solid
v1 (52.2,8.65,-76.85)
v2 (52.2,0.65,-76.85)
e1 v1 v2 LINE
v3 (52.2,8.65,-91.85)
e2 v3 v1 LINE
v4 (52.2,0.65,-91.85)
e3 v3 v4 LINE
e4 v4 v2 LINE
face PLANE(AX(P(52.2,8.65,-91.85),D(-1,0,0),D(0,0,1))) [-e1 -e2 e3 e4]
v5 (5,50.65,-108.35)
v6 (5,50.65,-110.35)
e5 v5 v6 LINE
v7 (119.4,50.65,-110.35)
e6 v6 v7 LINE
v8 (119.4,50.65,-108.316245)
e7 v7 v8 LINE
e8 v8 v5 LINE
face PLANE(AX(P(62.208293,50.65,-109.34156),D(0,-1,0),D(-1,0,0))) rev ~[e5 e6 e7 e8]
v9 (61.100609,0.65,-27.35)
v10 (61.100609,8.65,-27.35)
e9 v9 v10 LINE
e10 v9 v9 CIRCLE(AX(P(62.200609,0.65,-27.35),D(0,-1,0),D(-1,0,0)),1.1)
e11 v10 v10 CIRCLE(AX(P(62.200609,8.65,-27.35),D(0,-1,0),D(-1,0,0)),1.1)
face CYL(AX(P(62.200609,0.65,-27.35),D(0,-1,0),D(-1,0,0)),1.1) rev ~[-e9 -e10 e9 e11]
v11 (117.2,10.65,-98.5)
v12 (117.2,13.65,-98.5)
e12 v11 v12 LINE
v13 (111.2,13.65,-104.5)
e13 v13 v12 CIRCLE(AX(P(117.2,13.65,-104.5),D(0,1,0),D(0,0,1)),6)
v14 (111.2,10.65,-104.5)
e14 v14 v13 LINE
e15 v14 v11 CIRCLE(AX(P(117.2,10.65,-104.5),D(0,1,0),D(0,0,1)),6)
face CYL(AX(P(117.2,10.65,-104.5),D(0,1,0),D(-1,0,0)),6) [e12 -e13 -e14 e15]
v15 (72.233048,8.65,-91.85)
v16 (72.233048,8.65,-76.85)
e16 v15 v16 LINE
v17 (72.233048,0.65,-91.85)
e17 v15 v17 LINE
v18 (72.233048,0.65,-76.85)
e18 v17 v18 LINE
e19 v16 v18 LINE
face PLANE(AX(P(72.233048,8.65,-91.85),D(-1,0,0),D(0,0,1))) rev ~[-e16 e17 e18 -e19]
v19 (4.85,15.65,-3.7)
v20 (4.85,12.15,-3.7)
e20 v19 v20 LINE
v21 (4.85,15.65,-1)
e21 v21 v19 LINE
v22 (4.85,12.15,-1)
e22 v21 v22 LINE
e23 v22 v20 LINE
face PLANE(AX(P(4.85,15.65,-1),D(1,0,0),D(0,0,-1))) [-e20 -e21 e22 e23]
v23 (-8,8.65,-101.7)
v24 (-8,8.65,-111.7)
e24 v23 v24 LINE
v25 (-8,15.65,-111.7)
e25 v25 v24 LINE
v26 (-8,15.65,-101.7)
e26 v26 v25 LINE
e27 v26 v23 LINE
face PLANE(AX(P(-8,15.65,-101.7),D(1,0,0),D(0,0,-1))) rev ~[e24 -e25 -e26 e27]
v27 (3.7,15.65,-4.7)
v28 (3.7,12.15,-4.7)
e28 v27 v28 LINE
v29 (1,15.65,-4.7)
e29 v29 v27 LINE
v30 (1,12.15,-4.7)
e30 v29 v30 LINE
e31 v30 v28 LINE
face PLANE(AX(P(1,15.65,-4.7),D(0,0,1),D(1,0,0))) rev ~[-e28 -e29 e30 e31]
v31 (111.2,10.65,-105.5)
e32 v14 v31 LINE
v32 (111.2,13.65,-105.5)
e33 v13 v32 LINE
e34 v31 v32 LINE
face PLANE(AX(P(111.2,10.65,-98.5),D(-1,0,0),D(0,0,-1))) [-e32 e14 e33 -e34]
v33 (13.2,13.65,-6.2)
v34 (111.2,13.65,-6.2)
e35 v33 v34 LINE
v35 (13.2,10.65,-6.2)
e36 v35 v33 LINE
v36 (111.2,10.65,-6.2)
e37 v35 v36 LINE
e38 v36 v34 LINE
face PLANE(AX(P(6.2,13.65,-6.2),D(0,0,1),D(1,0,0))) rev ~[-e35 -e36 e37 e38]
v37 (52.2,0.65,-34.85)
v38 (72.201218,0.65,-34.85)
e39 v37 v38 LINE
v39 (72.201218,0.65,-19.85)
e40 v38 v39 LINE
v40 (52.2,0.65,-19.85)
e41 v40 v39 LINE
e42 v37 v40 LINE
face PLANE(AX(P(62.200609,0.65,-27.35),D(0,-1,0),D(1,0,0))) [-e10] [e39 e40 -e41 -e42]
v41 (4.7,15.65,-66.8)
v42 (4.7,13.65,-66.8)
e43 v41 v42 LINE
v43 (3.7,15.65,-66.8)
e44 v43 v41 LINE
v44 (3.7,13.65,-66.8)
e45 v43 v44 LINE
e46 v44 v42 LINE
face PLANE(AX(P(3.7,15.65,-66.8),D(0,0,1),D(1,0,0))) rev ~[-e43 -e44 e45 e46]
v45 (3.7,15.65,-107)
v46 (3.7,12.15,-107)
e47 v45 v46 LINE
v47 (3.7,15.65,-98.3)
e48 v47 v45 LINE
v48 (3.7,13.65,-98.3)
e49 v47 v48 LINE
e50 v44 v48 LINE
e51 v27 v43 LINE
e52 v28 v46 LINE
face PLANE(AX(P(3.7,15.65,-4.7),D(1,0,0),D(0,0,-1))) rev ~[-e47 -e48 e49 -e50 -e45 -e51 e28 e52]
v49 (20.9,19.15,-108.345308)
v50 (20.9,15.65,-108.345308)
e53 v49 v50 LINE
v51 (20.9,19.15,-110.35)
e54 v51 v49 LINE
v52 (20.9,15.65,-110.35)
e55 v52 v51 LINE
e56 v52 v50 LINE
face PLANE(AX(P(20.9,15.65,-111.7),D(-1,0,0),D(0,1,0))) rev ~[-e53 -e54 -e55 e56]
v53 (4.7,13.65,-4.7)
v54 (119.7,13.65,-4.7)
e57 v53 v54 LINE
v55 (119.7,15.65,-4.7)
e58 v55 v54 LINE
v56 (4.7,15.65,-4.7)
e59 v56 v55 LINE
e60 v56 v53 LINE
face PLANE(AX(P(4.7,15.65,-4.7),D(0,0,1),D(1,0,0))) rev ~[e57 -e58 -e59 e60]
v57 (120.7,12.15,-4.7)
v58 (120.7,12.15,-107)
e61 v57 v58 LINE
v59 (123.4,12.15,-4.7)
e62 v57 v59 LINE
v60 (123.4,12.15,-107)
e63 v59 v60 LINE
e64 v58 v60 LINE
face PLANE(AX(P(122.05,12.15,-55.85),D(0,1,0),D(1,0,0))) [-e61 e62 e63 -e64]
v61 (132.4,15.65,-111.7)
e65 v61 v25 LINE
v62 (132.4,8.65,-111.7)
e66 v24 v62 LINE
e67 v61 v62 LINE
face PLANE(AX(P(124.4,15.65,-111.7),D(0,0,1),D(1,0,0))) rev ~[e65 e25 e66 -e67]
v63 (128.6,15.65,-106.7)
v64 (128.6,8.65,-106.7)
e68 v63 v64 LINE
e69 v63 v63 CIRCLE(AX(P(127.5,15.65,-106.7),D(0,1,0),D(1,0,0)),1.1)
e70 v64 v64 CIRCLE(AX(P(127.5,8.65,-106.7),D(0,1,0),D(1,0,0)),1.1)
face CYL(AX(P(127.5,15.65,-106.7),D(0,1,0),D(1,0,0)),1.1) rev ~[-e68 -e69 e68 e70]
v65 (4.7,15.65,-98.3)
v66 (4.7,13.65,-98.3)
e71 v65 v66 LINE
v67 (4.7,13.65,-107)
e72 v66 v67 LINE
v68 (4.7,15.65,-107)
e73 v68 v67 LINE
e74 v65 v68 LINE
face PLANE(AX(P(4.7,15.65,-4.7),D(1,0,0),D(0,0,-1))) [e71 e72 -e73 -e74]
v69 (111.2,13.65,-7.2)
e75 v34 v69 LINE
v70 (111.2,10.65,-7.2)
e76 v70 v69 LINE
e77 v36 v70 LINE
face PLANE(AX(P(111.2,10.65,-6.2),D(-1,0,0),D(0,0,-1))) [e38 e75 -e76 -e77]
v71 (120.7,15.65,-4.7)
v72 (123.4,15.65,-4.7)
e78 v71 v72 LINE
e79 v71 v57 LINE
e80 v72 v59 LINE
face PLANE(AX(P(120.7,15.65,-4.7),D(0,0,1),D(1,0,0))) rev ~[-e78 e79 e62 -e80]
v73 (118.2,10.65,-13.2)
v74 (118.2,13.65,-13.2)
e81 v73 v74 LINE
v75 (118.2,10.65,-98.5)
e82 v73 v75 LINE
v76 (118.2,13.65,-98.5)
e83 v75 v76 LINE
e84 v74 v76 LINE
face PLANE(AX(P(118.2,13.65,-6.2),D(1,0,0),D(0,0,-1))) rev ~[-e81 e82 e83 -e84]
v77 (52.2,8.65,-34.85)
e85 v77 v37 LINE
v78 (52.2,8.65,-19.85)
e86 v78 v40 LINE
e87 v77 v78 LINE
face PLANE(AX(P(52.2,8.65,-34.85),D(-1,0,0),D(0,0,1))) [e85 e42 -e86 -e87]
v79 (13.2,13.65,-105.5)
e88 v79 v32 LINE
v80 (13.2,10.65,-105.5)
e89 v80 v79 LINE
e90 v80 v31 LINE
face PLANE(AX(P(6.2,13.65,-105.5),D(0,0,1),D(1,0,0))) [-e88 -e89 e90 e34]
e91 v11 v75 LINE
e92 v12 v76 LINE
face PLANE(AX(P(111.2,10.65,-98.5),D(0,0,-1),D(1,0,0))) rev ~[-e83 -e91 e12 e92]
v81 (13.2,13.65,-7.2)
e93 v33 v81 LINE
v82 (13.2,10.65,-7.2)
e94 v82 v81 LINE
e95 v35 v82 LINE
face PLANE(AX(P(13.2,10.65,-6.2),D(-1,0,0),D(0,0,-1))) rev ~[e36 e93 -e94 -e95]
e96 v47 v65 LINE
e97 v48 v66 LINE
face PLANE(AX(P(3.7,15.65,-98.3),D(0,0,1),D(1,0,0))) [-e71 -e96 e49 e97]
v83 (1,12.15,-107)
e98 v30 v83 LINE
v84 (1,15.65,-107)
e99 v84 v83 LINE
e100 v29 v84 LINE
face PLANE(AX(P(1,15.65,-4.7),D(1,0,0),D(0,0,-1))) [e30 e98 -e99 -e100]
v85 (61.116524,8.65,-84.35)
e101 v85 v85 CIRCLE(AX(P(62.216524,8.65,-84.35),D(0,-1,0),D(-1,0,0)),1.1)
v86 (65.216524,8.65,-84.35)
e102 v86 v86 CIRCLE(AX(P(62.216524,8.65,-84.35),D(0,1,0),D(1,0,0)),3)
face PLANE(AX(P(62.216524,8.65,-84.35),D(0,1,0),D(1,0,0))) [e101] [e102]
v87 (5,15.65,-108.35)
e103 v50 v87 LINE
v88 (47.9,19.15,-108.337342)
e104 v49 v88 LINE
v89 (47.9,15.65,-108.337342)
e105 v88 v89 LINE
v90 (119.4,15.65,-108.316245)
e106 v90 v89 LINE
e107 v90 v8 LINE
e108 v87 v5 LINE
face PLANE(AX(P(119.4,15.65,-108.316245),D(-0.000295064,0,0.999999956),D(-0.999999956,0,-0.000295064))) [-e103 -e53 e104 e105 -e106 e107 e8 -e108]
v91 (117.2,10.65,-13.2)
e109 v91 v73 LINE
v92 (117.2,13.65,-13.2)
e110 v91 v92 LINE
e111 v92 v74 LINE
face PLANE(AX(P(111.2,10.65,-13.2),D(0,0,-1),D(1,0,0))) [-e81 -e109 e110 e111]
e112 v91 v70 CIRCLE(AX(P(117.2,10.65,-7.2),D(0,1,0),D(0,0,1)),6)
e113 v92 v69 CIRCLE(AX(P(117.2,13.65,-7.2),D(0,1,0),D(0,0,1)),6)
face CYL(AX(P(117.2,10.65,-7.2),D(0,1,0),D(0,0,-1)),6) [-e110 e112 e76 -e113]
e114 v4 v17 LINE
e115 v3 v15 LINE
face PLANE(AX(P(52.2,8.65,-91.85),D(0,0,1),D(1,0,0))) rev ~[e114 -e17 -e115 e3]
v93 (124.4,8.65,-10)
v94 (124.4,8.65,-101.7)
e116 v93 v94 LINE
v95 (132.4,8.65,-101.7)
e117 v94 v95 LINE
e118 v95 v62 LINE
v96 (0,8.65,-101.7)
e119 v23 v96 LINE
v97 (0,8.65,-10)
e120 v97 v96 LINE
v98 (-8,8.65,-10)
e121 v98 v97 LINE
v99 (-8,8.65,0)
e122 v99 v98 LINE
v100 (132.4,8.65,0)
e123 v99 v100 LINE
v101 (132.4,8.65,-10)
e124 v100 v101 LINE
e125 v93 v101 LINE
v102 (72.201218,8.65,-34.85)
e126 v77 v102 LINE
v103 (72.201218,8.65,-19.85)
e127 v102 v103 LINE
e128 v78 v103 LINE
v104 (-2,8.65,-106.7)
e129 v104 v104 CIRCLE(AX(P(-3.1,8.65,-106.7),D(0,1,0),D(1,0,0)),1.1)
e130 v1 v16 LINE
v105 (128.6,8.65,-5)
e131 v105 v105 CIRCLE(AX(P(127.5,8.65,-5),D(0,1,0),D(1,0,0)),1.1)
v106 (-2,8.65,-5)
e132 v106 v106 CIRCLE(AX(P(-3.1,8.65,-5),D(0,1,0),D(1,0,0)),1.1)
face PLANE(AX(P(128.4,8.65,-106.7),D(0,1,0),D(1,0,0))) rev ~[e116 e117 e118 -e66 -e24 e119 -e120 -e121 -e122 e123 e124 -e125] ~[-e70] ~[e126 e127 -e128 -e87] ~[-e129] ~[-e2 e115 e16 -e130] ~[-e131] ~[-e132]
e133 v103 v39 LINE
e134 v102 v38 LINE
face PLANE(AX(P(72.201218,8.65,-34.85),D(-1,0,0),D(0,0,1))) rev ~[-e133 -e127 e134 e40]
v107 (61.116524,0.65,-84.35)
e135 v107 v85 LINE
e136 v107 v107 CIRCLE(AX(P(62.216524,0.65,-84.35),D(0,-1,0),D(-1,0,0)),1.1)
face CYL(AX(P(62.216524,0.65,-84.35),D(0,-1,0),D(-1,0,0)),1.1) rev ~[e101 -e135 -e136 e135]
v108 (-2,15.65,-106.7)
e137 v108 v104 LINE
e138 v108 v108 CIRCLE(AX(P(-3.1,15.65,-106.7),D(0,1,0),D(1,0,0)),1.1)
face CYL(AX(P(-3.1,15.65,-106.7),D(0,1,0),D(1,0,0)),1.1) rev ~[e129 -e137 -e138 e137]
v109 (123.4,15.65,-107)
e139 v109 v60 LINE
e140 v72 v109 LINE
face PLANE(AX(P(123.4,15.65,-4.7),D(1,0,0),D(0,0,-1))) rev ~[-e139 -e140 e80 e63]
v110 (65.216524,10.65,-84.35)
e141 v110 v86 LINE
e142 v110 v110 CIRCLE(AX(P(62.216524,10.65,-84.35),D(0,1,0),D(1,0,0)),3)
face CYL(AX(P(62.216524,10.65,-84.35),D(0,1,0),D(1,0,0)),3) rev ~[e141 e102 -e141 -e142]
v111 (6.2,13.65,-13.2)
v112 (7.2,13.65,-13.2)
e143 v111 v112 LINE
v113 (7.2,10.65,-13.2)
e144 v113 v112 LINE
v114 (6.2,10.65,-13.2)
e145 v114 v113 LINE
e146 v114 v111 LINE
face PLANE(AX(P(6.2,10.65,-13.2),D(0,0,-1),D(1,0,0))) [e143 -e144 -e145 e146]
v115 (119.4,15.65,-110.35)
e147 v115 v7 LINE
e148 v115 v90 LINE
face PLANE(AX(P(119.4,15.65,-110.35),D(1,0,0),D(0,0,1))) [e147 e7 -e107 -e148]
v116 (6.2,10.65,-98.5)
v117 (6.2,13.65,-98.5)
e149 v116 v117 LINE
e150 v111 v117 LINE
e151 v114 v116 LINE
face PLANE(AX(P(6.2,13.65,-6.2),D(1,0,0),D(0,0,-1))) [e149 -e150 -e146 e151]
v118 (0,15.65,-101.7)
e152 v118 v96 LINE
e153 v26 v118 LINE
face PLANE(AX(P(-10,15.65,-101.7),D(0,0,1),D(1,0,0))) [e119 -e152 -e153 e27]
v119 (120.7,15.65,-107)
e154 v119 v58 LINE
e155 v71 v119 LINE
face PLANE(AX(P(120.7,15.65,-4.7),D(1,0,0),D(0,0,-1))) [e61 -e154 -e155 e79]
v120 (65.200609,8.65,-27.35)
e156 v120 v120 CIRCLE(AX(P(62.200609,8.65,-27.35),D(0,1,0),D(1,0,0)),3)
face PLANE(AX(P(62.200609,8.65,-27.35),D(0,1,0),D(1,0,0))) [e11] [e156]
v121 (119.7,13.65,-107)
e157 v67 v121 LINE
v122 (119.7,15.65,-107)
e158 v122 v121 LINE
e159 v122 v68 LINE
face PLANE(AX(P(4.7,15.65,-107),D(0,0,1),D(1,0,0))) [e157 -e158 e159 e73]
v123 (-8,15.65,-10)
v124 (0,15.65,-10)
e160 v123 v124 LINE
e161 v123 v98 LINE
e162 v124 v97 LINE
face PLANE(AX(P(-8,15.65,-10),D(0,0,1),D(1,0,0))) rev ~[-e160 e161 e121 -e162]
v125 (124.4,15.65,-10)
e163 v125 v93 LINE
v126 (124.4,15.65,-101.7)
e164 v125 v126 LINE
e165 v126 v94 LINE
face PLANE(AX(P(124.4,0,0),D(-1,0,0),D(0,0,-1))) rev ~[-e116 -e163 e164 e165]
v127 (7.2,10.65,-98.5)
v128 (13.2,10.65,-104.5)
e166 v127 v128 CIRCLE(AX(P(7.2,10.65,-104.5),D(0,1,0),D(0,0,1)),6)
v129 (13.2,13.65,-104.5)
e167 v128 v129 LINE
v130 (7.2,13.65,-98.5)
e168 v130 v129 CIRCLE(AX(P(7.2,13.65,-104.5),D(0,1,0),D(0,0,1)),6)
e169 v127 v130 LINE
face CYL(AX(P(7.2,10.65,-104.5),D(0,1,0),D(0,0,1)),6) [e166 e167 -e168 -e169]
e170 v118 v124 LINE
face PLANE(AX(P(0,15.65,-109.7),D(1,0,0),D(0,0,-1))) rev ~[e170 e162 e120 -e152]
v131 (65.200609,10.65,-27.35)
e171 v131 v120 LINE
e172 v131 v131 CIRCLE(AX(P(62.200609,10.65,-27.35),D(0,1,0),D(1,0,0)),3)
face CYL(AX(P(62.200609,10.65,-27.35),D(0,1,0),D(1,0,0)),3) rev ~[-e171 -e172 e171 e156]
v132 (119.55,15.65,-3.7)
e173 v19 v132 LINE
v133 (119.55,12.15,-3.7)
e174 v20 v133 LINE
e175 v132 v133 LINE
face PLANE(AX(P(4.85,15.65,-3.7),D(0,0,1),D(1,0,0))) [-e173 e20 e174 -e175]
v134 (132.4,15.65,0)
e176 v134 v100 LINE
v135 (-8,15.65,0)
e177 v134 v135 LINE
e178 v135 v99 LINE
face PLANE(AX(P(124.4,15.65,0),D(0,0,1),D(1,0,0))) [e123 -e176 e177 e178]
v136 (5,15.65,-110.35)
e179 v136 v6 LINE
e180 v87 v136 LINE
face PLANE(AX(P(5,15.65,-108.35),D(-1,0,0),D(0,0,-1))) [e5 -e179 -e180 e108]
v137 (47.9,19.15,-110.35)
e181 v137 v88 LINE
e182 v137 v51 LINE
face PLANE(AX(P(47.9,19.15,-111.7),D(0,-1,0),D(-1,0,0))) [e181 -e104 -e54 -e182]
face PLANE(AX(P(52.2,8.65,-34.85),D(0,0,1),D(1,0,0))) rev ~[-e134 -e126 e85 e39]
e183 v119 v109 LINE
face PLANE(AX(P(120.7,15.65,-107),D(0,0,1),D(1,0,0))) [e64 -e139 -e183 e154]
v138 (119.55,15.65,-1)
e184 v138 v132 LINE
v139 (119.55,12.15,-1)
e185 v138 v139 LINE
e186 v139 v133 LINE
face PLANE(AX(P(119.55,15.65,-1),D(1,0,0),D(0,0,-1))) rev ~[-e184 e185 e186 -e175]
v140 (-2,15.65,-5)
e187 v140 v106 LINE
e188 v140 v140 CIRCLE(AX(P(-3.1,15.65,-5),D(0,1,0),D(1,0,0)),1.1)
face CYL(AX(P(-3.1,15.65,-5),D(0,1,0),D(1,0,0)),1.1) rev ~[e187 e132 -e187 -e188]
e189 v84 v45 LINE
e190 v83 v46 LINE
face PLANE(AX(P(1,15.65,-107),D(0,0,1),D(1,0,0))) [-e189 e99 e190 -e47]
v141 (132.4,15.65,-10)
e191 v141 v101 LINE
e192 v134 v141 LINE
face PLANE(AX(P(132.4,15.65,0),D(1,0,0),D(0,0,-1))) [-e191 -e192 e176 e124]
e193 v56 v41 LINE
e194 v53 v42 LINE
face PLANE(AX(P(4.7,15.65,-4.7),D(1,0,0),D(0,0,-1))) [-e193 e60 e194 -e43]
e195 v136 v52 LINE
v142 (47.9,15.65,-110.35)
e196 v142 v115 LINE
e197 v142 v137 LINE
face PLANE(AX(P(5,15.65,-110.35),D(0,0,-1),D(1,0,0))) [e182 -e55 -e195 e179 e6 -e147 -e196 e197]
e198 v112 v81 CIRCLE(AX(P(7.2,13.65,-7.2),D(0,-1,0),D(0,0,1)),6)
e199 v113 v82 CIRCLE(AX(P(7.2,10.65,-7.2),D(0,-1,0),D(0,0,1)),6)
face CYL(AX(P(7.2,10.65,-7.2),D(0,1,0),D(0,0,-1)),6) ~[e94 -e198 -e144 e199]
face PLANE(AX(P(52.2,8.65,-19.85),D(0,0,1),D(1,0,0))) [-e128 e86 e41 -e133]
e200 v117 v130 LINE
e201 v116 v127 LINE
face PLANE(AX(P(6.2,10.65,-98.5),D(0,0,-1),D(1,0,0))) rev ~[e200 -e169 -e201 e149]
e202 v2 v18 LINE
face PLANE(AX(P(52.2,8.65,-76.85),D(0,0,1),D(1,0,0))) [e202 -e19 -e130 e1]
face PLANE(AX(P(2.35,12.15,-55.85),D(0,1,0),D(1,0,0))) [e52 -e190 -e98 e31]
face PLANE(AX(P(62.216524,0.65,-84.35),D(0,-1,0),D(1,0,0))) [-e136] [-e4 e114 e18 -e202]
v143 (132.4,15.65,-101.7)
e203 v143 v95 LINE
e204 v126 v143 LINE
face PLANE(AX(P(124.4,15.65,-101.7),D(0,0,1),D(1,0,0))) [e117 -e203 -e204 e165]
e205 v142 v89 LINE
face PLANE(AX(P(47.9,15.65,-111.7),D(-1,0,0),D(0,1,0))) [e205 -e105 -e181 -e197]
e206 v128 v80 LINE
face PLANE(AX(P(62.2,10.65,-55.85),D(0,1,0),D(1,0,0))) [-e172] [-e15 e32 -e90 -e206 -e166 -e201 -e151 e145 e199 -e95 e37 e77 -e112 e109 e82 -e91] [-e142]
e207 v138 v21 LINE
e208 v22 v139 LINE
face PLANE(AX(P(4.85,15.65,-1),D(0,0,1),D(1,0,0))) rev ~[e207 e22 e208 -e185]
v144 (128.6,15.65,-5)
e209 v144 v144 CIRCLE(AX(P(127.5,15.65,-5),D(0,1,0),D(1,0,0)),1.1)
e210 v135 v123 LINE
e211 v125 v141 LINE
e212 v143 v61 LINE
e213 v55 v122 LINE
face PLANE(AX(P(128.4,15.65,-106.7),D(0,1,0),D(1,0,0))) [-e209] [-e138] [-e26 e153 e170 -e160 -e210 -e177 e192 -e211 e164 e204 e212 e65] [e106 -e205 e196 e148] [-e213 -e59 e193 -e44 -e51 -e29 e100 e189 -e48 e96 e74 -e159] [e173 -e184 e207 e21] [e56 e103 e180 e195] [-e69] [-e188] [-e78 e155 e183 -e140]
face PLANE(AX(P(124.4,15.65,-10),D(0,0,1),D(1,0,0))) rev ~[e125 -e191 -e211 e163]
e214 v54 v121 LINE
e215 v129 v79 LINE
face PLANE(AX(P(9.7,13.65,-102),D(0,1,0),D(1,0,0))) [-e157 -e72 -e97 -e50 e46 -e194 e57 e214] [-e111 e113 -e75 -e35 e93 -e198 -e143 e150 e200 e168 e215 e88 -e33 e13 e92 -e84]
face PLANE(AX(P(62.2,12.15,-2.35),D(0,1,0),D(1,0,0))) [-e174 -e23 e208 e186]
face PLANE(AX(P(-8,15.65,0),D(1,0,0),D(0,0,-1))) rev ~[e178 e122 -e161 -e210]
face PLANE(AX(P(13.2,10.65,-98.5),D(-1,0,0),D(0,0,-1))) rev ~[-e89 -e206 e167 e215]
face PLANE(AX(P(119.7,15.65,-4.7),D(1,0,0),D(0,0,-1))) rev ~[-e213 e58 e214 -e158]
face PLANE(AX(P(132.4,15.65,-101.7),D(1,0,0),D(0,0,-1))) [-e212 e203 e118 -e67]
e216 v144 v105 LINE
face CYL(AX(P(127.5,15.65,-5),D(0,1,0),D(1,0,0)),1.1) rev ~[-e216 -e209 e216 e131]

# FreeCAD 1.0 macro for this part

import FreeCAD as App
import Part
import Sketcher
from FreeCAD import Vector
Q = App.Units.Quantity


def edges_at(feature, points):
    """Names of the edges that pass closest to the given points."""
    edges = feature.Shape.Edges
    near = lambda p: min(range(len(edges)), key=lambda i: edges[i].distToShape(Part.Vertex(*p))[0])
    return sorted({f"Edge{near(p) + 1}" for p in points})


def add_polygon(sketch, points):
    """Adds a closed chain of lines whose ends are joined by coincident constraints."""
    first, n = sketch.GeometryCount, len(points)
    for a, b in zip(points, points[1:] + points[:1]):
        sketch.addGeometry(Part.LineSegment(App.Vector(*a, 0), App.Vector(*b, 0)), False)
    for i in range(n):
        sketch.addConstraint(Sketcher.Constraint("Coincident", first + i, 2, first + (i + 1) % n, 1))

doc = App.newDocument("Part")
body = doc.addObject("PartDesign::Body", "Body")

# Sketch on XZ plane
sketch1 = body.newObject("Sketcher::SketchObject", "Sketch")
sketch1.AttachmentSupport = (doc.getObject("XZ_Plane"), [""])
sketch1.MapMode = "FlatFace"
add_polygon(sketch1, [(0, -112), (0, 0), (124, 0), (124, -112)])  # lines 0-3
sketch1.addConstraint(Sketcher.Constraint("Vertical", 0))
sketch1.addConstraint(Sketcher.Constraint("Horizontal", 1))
sketch1.addConstraint(Sketcher.Constraint("Vertical", 2))
sketch1.addConstraint(Sketcher.Constraint("Horizontal", 3))
sketch1.addConstraint(Sketcher.Constraint("Coincident", 0, 2, -1, 1))
sketch1.addConstraint(Sketcher.Constraint("DistanceX", 1, 1, 1, 2, Q("124.4 mm")))
sketch1.addConstraint(Sketcher.Constraint("DistanceY", 0, 1, 0, 2, Q("111.7 mm")))
pad1 = body.newObject("PartDesign::Pad", "Pad")
pad1.Profile = sketch1
pad1.Length = 15.65
pad1.Reversed = True
doc.recompute()

fillet = body.newObject("PartDesign::Fillet", "Fillet")
fillet.Base = (pad1, edges_at(pad1, [
    (0, 7.825, -111.7),
    (124.4, 7.825, -111.7),
    (124.4, 7.825, 0),
    (0, 7.825, 0),
]))
fillet.Radius = 2

# Sketch on XZ plane
sketch2 = body.newObject("Sketcher::SketchObject", "Sketch001")
sketch2.AttachmentSupport = (doc.getObject("XZ_Plane"), [""])
sketch2.MapMode = "FlatFace"
sketch2.AttachmentOffset = App.Placement(Vector(0, 0, -15.65), App.Rotation())
add_polygon(sketch2, [(5, -107), (5, -5), (120, -5), (120, -107)])  # lines 0-3
sketch2.addConstraint(Sketcher.Constraint("Vertical", 0))
sketch2.addConstraint(Sketcher.Constraint("Horizontal", 1))
sketch2.addConstraint(Sketcher.Constraint("Vertical", 2))
sketch2.addConstraint(Sketcher.Constraint("Horizontal", 3))
sketch2.addConstraint(Sketcher.Constraint("DistanceX", 1, 1, 1, 2, Q("115 mm")))
sketch2.addConstraint(Sketcher.Constraint("DistanceY", 0, 1, 0, 2, Q("102.3 mm")))
sketch2.addConstraint(Sketcher.Constraint("DistanceY", 2, 2, -1, 1, Q("107 mm")))
sketch2.addConstraint(Sketcher.Constraint("DistanceX", -1, 1, 0, 2, Q("4.7 mm")))
pocket1 = body.newObject("PartDesign::Pocket", "Pocket")
pocket1.Profile = sketch2
pocket1.Length = 2
pocket1.Reversed = True

# Sketch on XZ plane
sketch3 = body.newObject("Sketcher::SketchObject", "Sketch002")
sketch3.AttachmentSupport = (doc.getObject("XZ_Plane"), [""])
sketch3.MapMode = "FlatFace"
sketch3.AttachmentOffset = App.Placement(Vector(0, 0, -13.65), App.Rotation())
add_polygon(sketch3, [(6, -106), (6, -6), (118, -6), (118, -106)])  # lines 0-3
sketch3.addConstraint(Sketcher.Constraint("Vertical", 0))
sketch3.addConstraint(Sketcher.Constraint("Horizontal", 1))
sketch3.addConstraint(Sketcher.Constraint("Vertical", 2))
sketch3.addConstraint(Sketcher.Constraint("Horizontal", 3))
sketch3.addConstraint(Sketcher.Constraint("DistanceX", 1, 1, 1, 2, Q("112 mm")))
sketch3.addConstraint(Sketcher.Constraint("DistanceY", 0, 1, 0, 2, Q("99.3 mm")))
sketch3.addConstraint(Sketcher.Constraint("DistanceX", -1, 1, 0, 2, Q("6.2 mm")))
sketch3.addConstraint(Sketcher.Constraint("DistanceY", 0, 2, -1, 1, Q("6.2 mm")))
pocket2 = body.newObject("PartDesign::Pocket", "Pocket001")
pocket2.Profile = sketch3
pocket2.Length = 3
pocket2.Reversed = True

# Sketch on XZ plane
sketch4 = body.newObject("Sketcher::SketchObject", "Sketch003")
sketch4.AttachmentSupport = (doc.getObject("XZ_Plane"), [""])
sketch4.MapMode = "FlatFace"
sketch4.AttachmentOffset = App.Placement(Vector(0, 0, -10.65), App.Rotation())
add_polygon(sketch4, [(6, -106), (6, -98), (13, -98), (13, -106)])  # lines 0-3
add_polygon(sketch4, [(6, -13), (6, -6), (13, -6), (13, -13)])  # lines 4-7
add_polygon(sketch4, [(111, -106), (111, -98), (118, -98), (118, -106)])  # lines 8-11
add_polygon(sketch4, [(111, -13), (111, -6), (118, -6), (118, -13)])  # lines 12-15
sketch4.addConstraint(Sketcher.Constraint("Vertical", 0))
sketch4.addConstraint(Sketcher.Constraint("Horizontal", 1))
sketch4.addConstraint(Sketcher.Constraint("Vertical", 2))
sketch4.addConstraint(Sketcher.Constraint("Horizontal", 3))
sketch4.addConstraint(Sketcher.Constraint("Vertical", 4))
sketch4.addConstraint(Sketcher.Constraint("Horizontal", 5))
sketch4.addConstraint(Sketcher.Constraint("Vertical", 6))
sketch4.addConstraint(Sketcher.Constraint("Horizontal", 7))
sketch4.addConstraint(Sketcher.Constraint("Vertical", 8))
sketch4.addConstraint(Sketcher.Constraint("Horizontal", 9))
sketch4.addConstraint(Sketcher.Constraint("Vertical", 10))
sketch4.addConstraint(Sketcher.Constraint("Horizontal", 11))
sketch4.addConstraint(Sketcher.Constraint("Vertical", 12))
sketch4.addConstraint(Sketcher.Constraint("Horizontal", 13))
sketch4.addConstraint(Sketcher.Constraint("Vertical", 14))
sketch4.addConstraint(Sketcher.Constraint("Horizontal", 15))
sketch4.addConstraint(Sketcher.Constraint("Horizontal", 1, 2, 8, 2))
sketch4.addConstraint(Sketcher.Constraint("Horizontal", 3, 2, 10, 2))
sketch4.addConstraint(Sketcher.Constraint("Horizontal", 5, 2, 12, 2))
sketch4.addConstraint(Sketcher.Constraint("Horizontal", 7, 2, 14, 2))
sketch4.addConstraint(Sketcher.Constraint("Vertical", 3, 2, 4, 2))
sketch4.addConstraint(Sketcher.Constraint("Vertical", 2, 2, 5, 2))
sketch4.addConstraint(Sketcher.Constraint("Vertical", 11, 2, 12, 2))
sketch4.addConstraint(Sketcher.Constraint("Vertical", 10, 2, 13, 2))
sketch4.addConstraint(Sketcher.Constraint("Equal", 7, 9))
sketch4.addConstraint(Sketcher.Constraint("Equal", 15, 0))
sketch4.addConstraint(Sketcher.Constraint("Equal", 2, 4))
sketch4.addConstraint(Sketcher.Constraint("DistanceX", 1, 1, 1, 2, Q("7 mm")))
sketch4.addConstraint(Sketcher.Constraint("DistanceX", 1, 2, 8, 2, Q("98 mm")))
sketch4.addConstraint(Sketcher.Constraint("DistanceX", -1, 1, 0, 2, Q("6.2 mm")))
sketch4.addConstraint(Sketcher.Constraint("DistanceY", 0, 2, -1, 1, Q("98.5 mm")))
sketch4.addConstraint(Sketcher.Constraint("DistanceY", 4, 2, -1, 1, Q("6.2 mm")))
pad2 = body.newObject("PartDesign::Pad", "Pad001")
pad2.Profile = sketch4
pad2.Length = 3
pad2.Reversed = True

# Sketch on XZ plane
sketch5 = body.newObject("Sketcher::SketchObject", "Sketch004")
sketch5.AttachmentSupport = (doc.getObject("XZ_Plane"), [""])
sketch5.MapMode = "FlatFace"
sketch5.AttachmentOffset = App.Placement(Vector(0, 0, -15.65), App.Rotation())
add_polygon(sketch5, [(119.4, -110.3), (5, -110.3), (5, -108.3), (119.4, -108.3)])  # lines 0-3
sketch5.addConstraint(Sketcher.Constraint("Horizontal", 0))
sketch5.addConstraint(Sketcher.Constraint("Vertical", 1))
sketch5.addConstraint(Sketcher.Constraint("Vertical", 3))
sketch5.addConstraint(Sketcher.Constraint("DistanceY", 1, 1, 1, 2, Q("2 mm")))
sketch5.addConstraint(Sketcher.Constraint("DistanceX", 0, 2, 0, 1, Q("114.4 mm")))
sketch5.addConstraint(Sketcher.Constraint("DistanceX", -1, 1, 0, 2, Q("5 mm")))
sketch5.addConstraint(Sketcher.Constraint("DistanceY", 0, 2, -1, 1, Q("110.35 mm")))
sketch5.addConstraint(Sketcher.Constraint("DistanceY", 3, 2, 3, 1, Q("2.033755 mm")))
pad3 = body.newObject("PartDesign::Pad", "Pad002")
pad3.Profile = sketch5
pad3.Length = 35
pad3.Reversed = True
doc.recompute()

fillet2 = body.newObject("PartDesign::Fillet", "Fillet001")
fillet2.Base = (pad3, edges_at(pad3, [
    (111.2, 12.15, -13.2),
    (13.2, 12.15, -98.5),
    (13.2, 12.15, -13.2),
    (111.2, 12.15, -98.5),
]))
fillet2.Radius = 6

# Sketch on XZ plane
sketch6 = body.newObject("Sketcher::SketchObject", "Sketch005")
sketch6.AttachmentSupport = (doc.getObject("XZ_Plane"), [""])
sketch6.MapMode = "FlatFace"
sketch6.AttachmentOffset = App.Placement(Vector(0, 0, -15.65), App.Rotation())
add_polygon(sketch6, [(4.8, -3.7), (4.8, -1), (119.5, -1), (119.5, -3.7)])  # lines 0-3
add_polygon(sketch6, [(1, -107), (1, -4.7), (3.7, -4.7), (3.7, -107)])  # lines 4-7
add_polygon(sketch6, [(120.7, -107), (120.7, -4.7), (123.4, -4.7), (123.4, -107)])  # lines 8-11
sketch6.addConstraint(Sketcher.Constraint("Vertical", 0))
sketch6.addConstraint(Sketcher.Constraint("Horizontal", 1))
sketch6.addConstraint(Sketcher.Constraint("Vertical", 2))
sketch6.addConstraint(Sketcher.Constraint("Horizontal", 3))
sketch6.addConstraint(Sketcher.Constraint("Vertical", 4))
sketch6.addConstraint(Sketcher.Constraint("Horizontal", 5))
sketch6.addConstraint(Sketcher.Constraint("Vertical", 6))
sketch6.addConstraint(Sketcher.Constraint("Horizontal", 7))
sketch6.addConstraint(Sketcher.Constraint("Vertical", 8))
sketch6.addConstraint(Sketcher.Constraint("Horizontal", 9))
sketch6.addConstraint(Sketcher.Constraint("Vertical", 10))
sketch6.addConstraint(Sketcher.Constraint("Horizontal", 11))
sketch6.addConstraint(Sketcher.Constraint("Horizontal", 5, 2, 8, 2))
sketch6.addConstraint(Sketcher.Constraint("Horizontal", 7, 2, 10, 2))
sketch6.addConstraint(Sketcher.Constraint("Equal", 7, 9))
sketch6.addConstraint(Sketcher.Constraint("Equal", 11, 0))
sketch6.addConstraint(Sketcher.Constraint("DistanceX", 1, 1, 1, 2, Q("114.7 mm")))
sketch6.addConstraint(Sketcher.Constraint("DistanceX", 5, 1, 5, 2, Q("2.7 mm")))
sketch6.addConstraint(Sketcher.Constraint("DistanceY", 4, 1, 4, 2, Q("102.3 mm")))
sketch6.addConstraint(Sketcher.Constraint("DistanceY", 0, 2, -1, 1, Q("1 mm")))
sketch6.addConstraint(Sketcher.Constraint("DistanceX", -1, 1, 4, 2, Q("1 mm")))
sketch6.addConstraint(Sketcher.Constraint("DistanceY", 6, 2, -1, 1, Q("107 mm")))
sketch6.addConstraint(Sketcher.Constraint("DistanceX", 5, 2, 8, 2, Q("117 mm")))
sketch6.addConstraint(Sketcher.Constraint("DistanceX", -1, 1, 0, 2, Q("4.85 mm")))
pocket3 = body.newObject("PartDesign::Pocket", "Pocket002")
pocket3.Profile = sketch6
pocket3.Length = 3.5
pocket3.Reversed = True

# Sketch on XY plane
sketch7 = body.newObject("Sketcher::SketchObject", "Sketch006")
sketch7.AttachmentSupport = (doc.getObject("XY_Plane"), [""])
sketch7.MapMode = "FlatFace"
sketch7.AttachmentOffset = App.Placement(Vector(0, 0, -111.7), App.Rotation())
add_polygon(sketch7, [(47.9, 19.1), (47.9, 15.7), (20.9, 15.7), (20.9, 19.1)])  # lines 0-3
sketch7.addConstraint(Sketcher.Constraint("Vertical", 0))
sketch7.addConstraint(Sketcher.Constraint("Horizontal", 1))
sketch7.addConstraint(Sketcher.Constraint("Vertical", 2))
sketch7.addConstraint(Sketcher.Constraint("Horizontal", 3))
sketch7.addConstraint(Sketcher.Constraint("DistanceX", 1, 2, 1, 1, Q("27 mm")))
sketch7.addConstraint(Sketcher.Constraint("DistanceY", 0, 2, 0, 1, Q("3.5 mm")))
sketch7.addConstraint(Sketcher.Constraint("DistanceX", -1, 1, 0, 2, Q("47.9 mm")))
sketch7.addConstraint(Sketcher.Constraint("DistanceY", -1, 1, 0, 2, Q("15.65 mm")))
pocket4 = body.newObject("PartDesign::Pocket", "Pocket003")
pocket4.Profile = sketch7
pocket4.Type = "ThroughAll"
pocket4.Reversed = True

# Sketch on XZ plane
sketch8 = body.newObject("Sketcher::SketchObject", "Sketch007")
sketch8.AttachmentSupport = (doc.getObject("XZ_Plane"), [""])
sketch8.MapMode = "FlatFace"
sketch8.AttachmentOffset = App.Placement(Vector(0, 0, -15.65), App.Rotation())
add_polygon(sketch8, [(3.7, -98.3), (3.7, -66.8), (4.7, -66.8), (4.7, -98.3)])  # lines 0-3
sketch8.addConstraint(Sketcher.Constraint("Vertical", 0))
sketch8.addConstraint(Sketcher.Constraint("Horizontal", 1))
sketch8.addConstraint(Sketcher.Constraint("Vertical", 2))
sketch8.addConstraint(Sketcher.Constraint("Horizontal", 3))
sketch8.addConstraint(Sketcher.Constraint("DistanceX", 1, 1, 1, 2, Q("1 mm")))
sketch8.addConstraint(Sketcher.Constraint("DistanceY", 0, 1, 0, 2, Q("31.5 mm")))
sketch8.addConstraint(Sketcher.Constraint("DistanceX", -1, 1, 0, 2, Q("3.7 mm")))
sketch8.addConstraint(Sketcher.Constraint("DistanceY", 0, 2, -1, 1, Q("66.8 mm")))
pocket5 = body.newObject("PartDesign::Pocket", "Pocket004")
pocket5.Profile = sketch8
pocket5.Length = 2
pocket5.Reversed = True

# Sketch on XZ plane
sketch9 = body.newObject("Sketcher::SketchObject", "Sketch008")
sketch9.AttachmentSupport = (doc.getObject("XZ_Plane"), [""])
sketch9.MapMode = "FlatFace"
add_polygon(sketch9, [(124, -112), (124, 0), (0, 0), (0, -112)])  # lines 0-3
sketch9.addConstraint(Sketcher.Constraint("Vertical", 0))
sketch9.addConstraint(Sketcher.Constraint("Horizontal", 1))
sketch9.addConstraint(Sketcher.Constraint("Vertical", 2))
sketch9.addConstraint(Sketcher.Constraint("Horizontal", 3))
sketch9.addConstraint(Sketcher.Constraint("Coincident", 1, 2, -1, 1))
sketch9.addConstraint(Sketcher.Constraint("DistanceX", 1, 2, 1, 1, Q("124.4 mm")))
sketch9.addConstraint(Sketcher.Constraint("DistanceY", 0, 1, 0, 2, Q("111.7 mm")))
pocket6 = body.newObject("PartDesign::Pocket", "Pocket005")
pocket6.Profile = sketch9
pocket6.Length = 8.65

# Sketch on XZ plane
sketch10 = body.newObject("Sketcher::SketchObject", "Sketch009")
sketch10.AttachmentSupport = (doc.getObject("XZ_Plane"), [""])
sketch10.MapMode = "FlatFace"
sketch10.AttachmentOffset = App.Placement(Vector(0, 0, -15.65), App.Rotation())
add_polygon(sketch10, [(-6, -4.7), (-6, 0), (4.7, 0), (4.7, -4.7)])  # lines 0-3
sketch10.addConstraint(Sketcher.Constraint("Vertical", 0))
sketch10.addConstraint(Sketcher.Constraint("Horizontal", 1))
sketch10.addConstraint(Sketcher.Constraint("Vertical", 2))
sketch10.addConstraint(Sketcher.Constraint("Horizontal", 3))
sketch10.addConstraint(Sketcher.Constraint("PointOnObject", 0, 2, -1))
sketch10.addConstraint(Sketcher.Constraint("DistanceY", 0, 1, 0, 2, Q("4.7 mm")))
sketch10.addConstraint(Sketcher.Constraint("DistanceX", -1, 1, 1, 2, Q("4.7 mm")))
sketch10.addConstraint(Sketcher.Constraint("DistanceX", 1, 1, 1, 2, Q("10.736914 mm")))
pad4 = body.newObject("PartDesign::Pad", "Pad003")
pad4.Profile = sketch10
pad4.Length = 7

# Sketch on XZ plane
sketch11 = body.newObject("Sketcher::SketchObject", "Sketch010")
sketch11.AttachmentSupport = (doc.getObject("XZ_Plane"), [""])
sketch11.MapMode = "FlatFace"
sketch11.AttachmentOffset = App.Placement(Vector(0, 0, -15.65), App.Rotation())
add_polygon(sketch11, [(-6, -6.8), (-6, -4.7), (0, -4.7), (0, -6.8)])  # lines 0-3
sketch11.addConstraint(Sketcher.Constraint("Vertical", 0))
sketch11.addConstraint(Sketcher.Constraint("Horizontal", 1))
sketch11.addConstraint(Sketcher.Constraint("Vertical", 2))
sketch11.addConstraint(Sketcher.Constraint("Horizontal", 3))
sketch11.addConstraint(Sketcher.Constraint("PointOnObject", 1, 2, -2))
sketch11.addConstraint(Sketcher.Constraint("DistanceY", 0, 2, -1, 1, Q("4.7 mm")))
sketch11.addConstraint(Sketcher.Constraint("DistanceY", 0, 1, 0, 2, Q("2.116828 mm")))
sketch11.addConstraint(Sketcher.Constraint("DistanceX", 1, 1, 1, 2, Q("6.036914 mm")))
pad5 = body.newObject("PartDesign::Pad", "Pad004")
pad5.Profile = sketch11
pad5.Length = 7

# Sketch on XZ plane
sketch12 = body.newObject("Sketcher::SketchObject", "Sketch011")
sketch12.AttachmentSupport = (doc.getObject("XZ_Plane"), [""])
sketch12.MapMode = "FlatFace"
sketch12.AttachmentOffset = App.Placement(Vector(0, 0, -15.65), App.Rotation())
add_polygon(sketch12, [(122.4, -4), (122.4, 0), (124.4, 0), (124.4, -4)])  # lines 0-3
sketch12.addConstraint(Sketcher.Constraint("Vertical", 0))
sketch12.addConstraint(Sketcher.Constraint("Horizontal", 1))
sketch12.addConstraint(Sketcher.Constraint("Vertical", 2))
sketch12.addConstraint(Sketcher.Constraint("Horizontal", 3))
sketch12.addConstraint(Sketcher.Constraint("PointOnObject", 0, 2, -1))
sketch12.addConstraint(Sketcher.Constraint("DistanceX", 1, 1, 1, 2, Q("2 mm")))
sketch12.addConstraint(Sketcher.Constraint("DistanceX", -1, 1, 0, 2, Q("122.4 mm")))
sketch12.addConstraint(Sketcher.Constraint("DistanceY", 0, 1, 0, 2, Q("3.979387 mm")))
pad6 = body.newObject("PartDesign::Pad", "Pad005")
pad6.Profile = sketch12
pad6.Length = 7

# Sketch on XZ plane
sketch13 = body.newObject("Sketcher::SketchObject", "Sketch012")
sketch13.AttachmentSupport = (doc.getObject("XZ_Plane"), [""])
sketch13.MapMode = "FlatFace"
sketch13.AttachmentOffset = App.Placement(Vector(0, 0, -15.65), App.Rotation())
add_polygon(sketch13, [(124, -10), (124, 0), (134, 0), (134, -10)])  # lines 0-3
sketch13.addConstraint(Sketcher.Constraint("Vertical", 0))
sketch13.addConstraint(Sketcher.Constraint("Horizontal", 1))
sketch13.addConstraint(Sketcher.Constraint("Vertical", 2))
sketch13.addConstraint(Sketcher.Constraint("Horizontal", 3))
sketch13.addConstraint(Sketcher.Constraint("PointOnObject", 0, 2, -1))
sketch13.addConstraint(Sketcher.Constraint("DistanceX", -1, 1, 0, 2, Q("124.4 mm")))
sketch13.addConstraint(Sketcher.Constraint("DistanceY", 0, 1, 0, 2, Q("10.028002 mm")))
sketch13.addConstraint(Sketcher.Constraint("DistanceX", 1, 1, 1, 2, Q("10.013934 mm")))
pad7 = body.newObject("PartDesign::Pad", "Pad006")
pad7.Profile = sketch13
pad7.Length = 7

# Sketch on XZ plane
sketch14 = body.newObject("Sketcher::SketchObject", "Sketch013")
sketch14.AttachmentSupport = (doc.getObject("XZ_Plane"), [""])
sketch14.MapMode = "FlatFace"
sketch14.AttachmentOffset = App.Placement(Vector(0, 0, -15.65), App.Rotation())
sketch14.addGeometry(Part.Circle(Vector(129.4, -5, 0), Vector(0, 0, 1), 1.1), False)
sketch14.addConstraint(Sketcher.Constraint("Diameter", 0, Q("2.2 mm")))
sketch14.addConstraint(Sketcher.Constraint("DistanceY", 0, 3, -1, 1, Q("5 mm")))
sketch14.addConstraint(Sketcher.Constraint("DistanceX", -1, 1, 0, 3, Q("129.4 mm")))
pocket7 = body.newObject("PartDesign::Pocket", "Pocket006")
pocket7.Profile = sketch14
pocket7.Type = "ThroughAll"
pocket7.Reversed = True

# Sketch on XZ plane
sketch15 = body.newObject("Sketcher::SketchObject", "Sketch014")
sketch15.AttachmentSupport = (doc.getObject("XZ_Plane"), [""])
sketch15.MapMode = "FlatFace"
sketch15.AttachmentOffset = App.Placement(Vector(0, 0, -15.65), App.Rotation())
add_polygon(sketch15, [(122.4, -111.7), (122.4, -109.7), (124.4, -109.7), (124.4, -111.7)])  # lines 0-3
sketch15.addConstraint(Sketcher.Constraint("Vertical", 0))
sketch15.addConstraint(Sketcher.Constraint("Horizontal", 1))
sketch15.addConstraint(Sketcher.Constraint("Vertical", 2))
sketch15.addConstraint(Sketcher.Constraint("Horizontal", 3))
sketch15.addConstraint(Sketcher.Constraint("Equal", 3, 0))
sketch15.addConstraint(Sketcher.Constraint("DistanceX", 1, 1, 1, 2, Q("2 mm")))
sketch15.addConstraint(Sketcher.Constraint("DistanceX", -1, 1, 0, 2, Q("122.4 mm")))
sketch15.addConstraint(Sketcher.Constraint("DistanceY", 0, 2, -1, 1, Q("109.7 mm")))
pad8 = body.newObject("PartDesign::Pad", "Pad007")
pad8.Profile = sketch15
pad8.Length = 7

# Sketch on XZ plane
sketch16 = body.newObject("Sketcher::SketchObject", "Sketch015")
sketch16.AttachmentSupport = (doc.getObject("XZ_Plane"), [""])
sketch16.MapMode = "FlatFace"
sketch16.AttachmentOffset = App.Placement(Vector(0, 0, -15.65), App.Rotation())
add_polygon(sketch16, [(0, -111.7), (0, -109.7), (2, -109.7), (2, -111.7)])  # lines 0-3
sketch16.addConstraint(Sketcher.Constraint("Vertical", 0))
sketch16.addConstraint(Sketcher.Constraint("Horizontal", 1))
sketch16.addConstraint(Sketcher.Constraint("Vertical", 2))
sketch16.addConstraint(Sketcher.Constraint("Horizontal", 3))
sketch16.addConstraint(Sketcher.Constraint("PointOnObject", 0, 2, -2))
sketch16.addConstraint(Sketcher.Constraint("Equal", 3, 0))
sketch16.addConstraint(Sketcher.Constraint("DistanceX", 1, 1, 1, 2, Q("2 mm")))
sketch16.addConstraint(Sketcher.Constraint("DistanceY", 0, 2, -1, 1, Q("109.7 mm")))
pad9 = body.newObject("PartDesign::Pad", "Pad008")
pad9.Profile = sketch16
pad9.Length = 7

# Sketch on XZ plane
sketch17 = body.newObject("Sketcher::SketchObject", "Sketch016")
sketch17.AttachmentSupport = (doc.getObject("XZ_Plane"), [""])
sketch17.MapMode = "FlatFace"
sketch17.AttachmentOffset = App.Placement(Vector(0, 0, -15.65), App.Rotation())
add_polygon(sketch17, [(-10, -112), (-10, -102), (0, -102), (0, -112)])  # lines 0-3
sketch17.addConstraint(Sketcher.Constraint("Vertical", 0))
sketch17.addConstraint(Sketcher.Constraint("Horizontal", 1))
sketch17.addConstraint(Sketcher.Constraint("Vertical", 2))
sketch17.addConstraint(Sketcher.Constraint("Horizontal", 3))
sketch17.addConstraint(Sketcher.Constraint("PointOnObject", 1, 2, -2))
sketch17.addConstraint(Sketcher.Constraint("Equal", 3, 0))
sketch17.addConstraint(Sketcher.Constraint("DistanceX", 1, 1, 1, 2, Q("10 mm")))
sketch17.addConstraint(Sketcher.Constraint("DistanceY", 0, 2, -1, 1, Q("101.7 mm")))
pad10 = body.newObject("PartDesign::Pad", "Pad009")
pad10.Profile = sketch17
pad10.Length = 7

# Sketch on XZ plane
sketch18 = body.newObject("Sketcher::SketchObject", "Sketch017")
sketch18.AttachmentSupport = (doc.getObject("XZ_Plane"), [""])
sketch18.MapMode = "FlatFace"
sketch18.AttachmentOffset = App.Placement(Vector(0, 0, -15.65), App.Rotation())
sketch18.addGeometry(Part.Circle(Vector(-5, -106.7, 0), Vector(0, 0, 1), 1.1), False)  # 0
add_polygon(sketch18, [(-6, -6.8), (-6, 0), (0, 0), (0, -6.8)])  # lines 1-4
sketch18.addConstraint(Sketcher.Constraint("Vertical", 1))
sketch18.addConstraint(Sketcher.Constraint("Horizontal", 2))
sketch18.addConstraint(Sketcher.Constraint("Vertical", 3))
sketch18.addConstraint(Sketcher.Constraint("Horizontal", 4))
sketch18.addConstraint(Sketcher.Constraint("Coincident", 2, 2, -1, 1))
sketch18.addConstraint(Sketcher.Constraint("Diameter", 0, Q("2.2 mm")))
sketch18.addConstraint(Sketcher.Constraint("DistanceX", 0, 3, -1, 1, Q("5 mm")))
sketch18.addConstraint(Sketcher.Constraint("DistanceY", 0, 3, -1, 1, Q("106.7 mm")))
sketch18.addConstraint(Sketcher.Constraint("DistanceY", 1, 1, 1, 2, Q("6.816828 mm")))
sketch18.addConstraint(Sketcher.Constraint("DistanceX", 2, 1, 2, 2, Q("6.036914 mm")))
pocket8 = body.newObject("PartDesign::Pocket", "Pocket007")
pocket8.Profile = sketch18
pocket8.Length = 7
pocket8.Reversed = True

# Sketch on XZ plane
sketch19 = body.newObject("Sketcher::SketchObject", "Sketch018")
sketch19.AttachmentSupport = (doc.getObject("XZ_Plane"), [""])
sketch19.MapMode = "FlatFace"
sketch19.AttachmentOffset = App.Placement(Vector(0, 0, -15.65), App.Rotation())
add_polygon(sketch19, [(-8, -10), (-8, 0), (0, 0), (0, -10)])  # lines 0-3
sketch19.addConstraint(Sketcher.Constraint("Vertical", 0))
sketch19.addConstraint(Sketcher.Constraint("Horizontal", 1))
sketch19.addConstraint(Sketcher.Constraint("Vertical", 2))
sketch19.addConstraint(Sketcher.Constraint("Horizontal", 3))
sketch19.addConstraint(Sketcher.Constraint("Coincident", 1, 2, -1, 1))
sketch19.addConstraint(Sketcher.Constraint("DistanceX", 1, 1, 1, 2, Q("8 mm")))
sketch19.addConstraint(Sketcher.Constraint("DistanceY", 0, 1, 0, 2, Q("10 mm")))
pad11 = body.newObject("PartDesign::Pad", "Pad010")
pad11.Profile = sketch19
pad11.Length = 7

# Sketch on XZ plane
sketch20 = body.newObject("Sketcher::SketchObject", "Sketch019")
sketch20.AttachmentSupport = (doc.getObject("XZ_Plane"), [""])
sketch20.MapMode = "FlatFace"
sketch20.AttachmentOffset = App.Placement(Vector(0, 0, -15.65), App.Rotation())
add_polygon(sketch20, [(-7.4, -109.3), (-7.4, -104.8), (-2.2, -104.8), (-2.2, -109.3)])  # lines 0-3
sketch20.addConstraint(Sketcher.Constraint("Vertical", 0))
sketch20.addConstraint(Sketcher.Constraint("Horizontal", 1))
sketch20.addConstraint(Sketcher.Constraint("Vertical", 2))
sketch20.addConstraint(Sketcher.Constraint("Horizontal", 3))
sketch20.addConstraint(Sketcher.Constraint("DistanceX", 1, 1, 1, 2, Q("5.248428 mm")))
sketch20.addConstraint(Sketcher.Constraint("DistanceY", 0, 1, 0, 2, Q("4.514777 mm")))
sketch20.addConstraint(Sketcher.Constraint("DistanceX", 0, 2, -1, 1, Q("7.442618 mm")))
sketch20.addConstraint(Sketcher.Constraint("DistanceY", 0, 2, -1, 1, Q("104.796557 mm")))
pad12 = body.newObject("PartDesign::Pad", "Pad011")
pad12.Profile = sketch20
pad12.Length = 7

# Sketch on XZ plane
sketch21 = body.newObject("Sketcher::SketchObject", "Sketch020")
sketch21.AttachmentSupport = (doc.getObject("XZ_Plane"), [""])
sketch21.MapMode = "FlatFace"
sketch21.AttachmentOffset = App.Placement(Vector(0, 0, -15.65), App.Rotation())
add_polygon(sketch21, [(-10, -111.7), (-10, -101.7), (-8, -101.7), (-8, -111.7)])  # lines 0-3
sketch21.addConstraint(Sketcher.Constraint("Vertical", 0))
sketch21.addConstraint(Sketcher.Constraint("Horizontal", 1))
sketch21.addConstraint(Sketcher.Constraint("Vertical", 2))
sketch21.addConstraint(Sketcher.Constraint("Horizontal", 3))
sketch21.addConstraint(Sketcher.Constraint("DistanceX", 1, 1, 1, 2, Q("2 mm")))
sketch21.addConstraint(Sketcher.Constraint("DistanceY", 0, 1, 0, 2, Q("10 mm")))
sketch21.addConstraint(Sketcher.Constraint("DistanceX", 0, 2, -1, 1, Q("10 mm")))
sketch21.addConstraint(Sketcher.Constraint("DistanceY", 0, 2, -1, 1, Q("101.7 mm")))
pocket9 = body.newObject("PartDesign::Pocket", "Pocket008")
pocket9.Profile = sketch21
pocket9.Length = 7
pocket9.Reversed = True

# Sketch on XZ plane
sketch22 = body.newObject("Sketcher::SketchObject", "Sketch021")
sketch22.AttachmentSupport = (doc.getObject("XZ_Plane"), [""])
sketch22.MapMode = "FlatFace"
sketch22.AttachmentOffset = App.Placement(Vector(0, 0, -15.65), App.Rotation())
add_polygon(sketch22, [(124, -10), (124, 0), (134, 0), (134, -10)])  # lines 0-3
sketch22.addConstraint(Sketcher.Constraint("Vertical", 0))
sketch22.addConstraint(Sketcher.Constraint("Horizontal", 1))
sketch22.addConstraint(Sketcher.Constraint("Vertical", 2))
sketch22.addConstraint(Sketcher.Constraint("Horizontal", 3))
sketch22.addConstraint(Sketcher.Constraint("PointOnObject", 0, 2, -1))
sketch22.addConstraint(Sketcher.Constraint("DistanceX", -1, 1, 0, 2, Q("124.4 mm")))
sketch22.addConstraint(Sketcher.Constraint("DistanceY", 0, 1, 0, 2, Q("10.028002 mm")))
sketch22.addConstraint(Sketcher.Constraint("DistanceX", 1, 1, 1, 2, Q("10.013934 mm")))
pocket10 = body.newObject("PartDesign::Pocket", "Pocket009")
pocket10.Profile = sketch22
pocket10.Length = 7
pocket10.Reversed = True

# Sketch on XZ plane
sketch23 = body.newObject("Sketcher::SketchObject", "Sketch022")
sketch23.AttachmentSupport = (doc.getObject("XZ_Plane"), [""])
sketch23.MapMode = "FlatFace"
sketch23.AttachmentOffset = App.Placement(Vector(0, 0, -15.65), App.Rotation())
add_polygon(sketch23, [(124, -10), (124, 0), (132, 0), (132, -10)])  # lines 0-3
sketch23.addConstraint(Sketcher.Constraint("Vertical", 0))
sketch23.addConstraint(Sketcher.Constraint("Horizontal", 1))
sketch23.addConstraint(Sketcher.Constraint("Vertical", 2))
sketch23.addConstraint(Sketcher.Constraint("Horizontal", 3))
sketch23.addConstraint(Sketcher.Constraint("PointOnObject", 0, 2, -1))
sketch23.addConstraint(Sketcher.Constraint("DistanceX", 1, 1, 1, 2, Q("8 mm")))
sketch23.addConstraint(Sketcher.Constraint("DistanceY", 0, 1, 0, 2, Q("10 mm")))
sketch23.addConstraint(Sketcher.Constraint("DistanceX", -1, 1, 0, 2, Q("124.4 mm")))
pad13 = body.newObject("PartDesign::Pad", "Pad012")
pad13.Profile = sketch23
pad13.Length = 7

# Sketch on XZ plane
sketch24 = body.newObject("Sketcher::SketchObject", "Sketch023")
sketch24.AttachmentSupport = (doc.getObject("XZ_Plane"), [""])
sketch24.MapMode = "FlatFace"
sketch24.AttachmentOffset = App.Placement(Vector(0, 0, -15.65), App.Rotation())
add_polygon(sketch24, [(124, -112), (124, -102), (132, -102), (132, -112)])  # lines 0-3
sketch24.addConstraint(Sketcher.Constraint("Vertical", 0))
sketch24.addConstraint(Sketcher.Constraint("Horizontal", 1))
sketch24.addConstraint(Sketcher.Constraint("Vertical", 2))
sketch24.addConstraint(Sketcher.Constraint("Horizontal", 3))
sketch24.addConstraint(Sketcher.Constraint("DistanceX", 1, 1, 1, 2, Q("8 mm")))
sketch24.addConstraint(Sketcher.Constraint("DistanceY", 0, 1, 0, 2, Q("10 mm")))
sketch24.addConstraint(Sketcher.Constraint("DistanceX", -1, 1, 0, 2, Q("124.4 mm")))
sketch24.addConstraint(Sketcher.Constraint("DistanceY", 0, 2, -1, 1, Q("101.7 mm")))
pad14 = body.newObject("PartDesign::Pad", "Pad013")
pad14.Profile = sketch24
pad14.Length = 7

# Sketch on XZ plane
sketch25 = body.newObject("Sketcher::SketchObject", "Sketch024")
sketch25.AttachmentSupport = (doc.getObject("XZ_Plane"), [""])
sketch25.MapMode = "FlatFace"
sketch25.AttachmentOffset = App.Placement(Vector(0, 0, -15.65), App.Rotation())
sketch25.addGeometry(Part.Circle(Vector(-3.1, -106.7, 0), Vector(0, 0, 1), 1.1), False)
sketch25.addConstraint(Sketcher.Constraint("Diameter", 0, Q("2.2 mm")))
sketch25.addConstraint(Sketcher.Constraint("DistanceX", 0, 3, -1, 1, Q("3.1 mm")))
sketch25.addConstraint(Sketcher.Constraint("DistanceY", 0, 3, -1, 1, Q("106.7 mm")))
pocket11 = body.newObject("PartDesign::Pocket", "Pocket010")
pocket11.Profile = sketch25
pocket11.Length = 7
pocket11.Reversed = True

# Sketch on XZ plane
sketch26 = body.newObject("Sketcher::SketchObject", "Sketch025")
sketch26.AttachmentSupport = (doc.getObject("XZ_Plane"), [""])
sketch26.MapMode = "FlatFace"
sketch26.AttachmentOffset = App.Placement(Vector(0, 0, -15.65), App.Rotation())
sketch26.addGeometry(Part.Circle(Vector(-3.1, -5, 0), Vector(0, 0, 1), 1.1), False)
sketch26.addConstraint(Sketcher.Constraint("Diameter", 0, Q("2.2 mm")))
sketch26.addConstraint(Sketcher.Constraint("DistanceY", 0, 3, -1, 1, Q("5 mm")))
sketch26.addConstraint(Sketcher.Constraint("DistanceX", 0, 3, -1, 1, Q("3.1 mm")))
pocket12 = body.newObject("PartDesign::Pocket", "Pocket011")
pocket12.Profile = sketch26
pocket12.Length = 7
pocket12.Reversed = True

# Sketch on XZ plane
sketch27 = body.newObject("Sketcher::SketchObject", "Sketch026")
sketch27.AttachmentSupport = (doc.getObject("XZ_Plane"), [""])
sketch27.MapMode = "FlatFace"
sketch27.AttachmentOffset = App.Placement(Vector(0, 0, -15.65), App.Rotation())
sketch27.addGeometry(Part.Circle(Vector(127.5, -5, 0), Vector(0, 0, 1), 1.1), False)
sketch27.addConstraint(Sketcher.Constraint("Diameter", 0, Q("2.2 mm")))
sketch27.addConstraint(Sketcher.Constraint("DistanceY", 0, 3, -1, 1, Q("5 mm")))
sketch27.addConstraint(Sketcher.Constraint("DistanceX", -1, 1, 0, 3, Q("127.5 mm")))
pocket13 = body.newObject("PartDesign::Pocket", "Pocket012")
pocket13.Profile = sketch27
pocket13.Length = 7
pocket13.Reversed = True

# Sketch on XZ plane
sketch28 = body.newObject("Sketcher::SketchObject", "Sketch027")
sketch28.AttachmentSupport = (doc.getObject("XZ_Plane"), [""])
sketch28.MapMode = "FlatFace"
sketch28.AttachmentOffset = App.Placement(Vector(0, 0, -15.65), App.Rotation())
sketch28.addGeometry(Part.Circle(Vector(127.5, -106.7, 0), Vector(0, 0, 1), 1.1), False)
sketch28.addConstraint(Sketcher.Constraint("Diameter", 0, Q("2.2 mm")))
sketch28.addConstraint(Sketcher.Constraint("DistanceX", -1, 1, 0, 3, Q("127.5 mm")))
sketch28.addConstraint(Sketcher.Constraint("DistanceY", 0, 3, -1, 1, Q("106.7 mm")))
pocket14 = body.newObject("PartDesign::Pocket", "Pocket013")
pocket14.Profile = sketch28
pocket14.Length = 7
pocket14.Reversed = True

# Sketch on XZ plane
sketch29 = body.newObject("Sketcher::SketchObject", "Sketch028")
sketch29.AttachmentSupport = (doc.getObject("XZ_Plane"), [""])
sketch29.MapMode = "FlatFace"
sketch29.AttachmentOffset = App.Placement(Vector(0, 0, -8.65), App.Rotation())
add_polygon(sketch29, [(52, -77), (52, -92), (72, -92), (72, -77)])  # lines 0-3
add_polygon(sketch29, [(52, -20), (52, -35), (72, -35), (72, -20)])  # lines 4-7
sketch29.addConstraint(Sketcher.Constraint("Vertical", 0))
sketch29.addConstraint(Sketcher.Constraint("Horizontal", 1))
sketch29.addConstraint(Sketcher.Constraint("Vertical", 2))
sketch29.addConstraint(Sketcher.Constraint("Horizontal", 3))
sketch29.addConstraint(Sketcher.Constraint("Vertical", 4))
sketch29.addConstraint(Sketcher.Constraint("Horizontal", 5))
sketch29.addConstraint(Sketcher.Constraint("Vertical", 6))
sketch29.addConstraint(Sketcher.Constraint("Horizontal", 7))
sketch29.addConstraint(Sketcher.Constraint("Vertical", 3, 2, 4, 2))
sketch29.addConstraint(Sketcher.Constraint("Equal", 2, 4))
sketch29.addConstraint(Sketcher.Constraint("DistanceY", 0, 2, 0, 1, Q("15 mm")))
sketch29.addConstraint(Sketcher.Constraint("DistanceY", 3, 2, 4, 2, Q("42 mm")))
sketch29.addConstraint(Sketcher.Constraint("DistanceX", -1, 1, 0, 2, Q("52.2 mm")))
sketch29.addConstraint(Sketcher.Constraint("DistanceY", 0, 2, -1, 1, Q("91.85 mm")))
sketch29.addConstraint(Sketcher.Constraint("DistanceX", 1, 1, 1, 2, Q("20.033048 mm")))
sketch29.addConstraint(Sketcher.Constraint("DistanceX", 5, 1, 5, 2, Q("20.001218 mm")))
pad15 = body.newObject("PartDesign::Pad", "Pad014")
pad15.Profile = sketch29
pad15.Length = 8

# Sketch on XZ plane
sketch30 = body.newObject("Sketcher::SketchObject", "Sketch029")
sketch30.AttachmentSupport = (doc.getObject("XZ_Plane"), [""])
sketch30.MapMode = "FlatFace"
sketch30.AttachmentOffset = App.Placement(Vector(0, 0, -0.65), App.Rotation())
sketch30.addGeometry(Part.Circle(Vector(62.2, -84.3, 0), Vector(0, 0, 1), 1.1), False)
sketch30.addGeometry(Part.Circle(Vector(62.2, -27.4, 0), Vector(0, 0, 1), 1.1), False)
sketch30.addConstraint(Sketcher.Constraint("Equal", 0, 1))
sketch30.addConstraint(Sketcher.Constraint("Diameter", 0, Q("2.2 mm")))
sketch30.addConstraint(Sketcher.Constraint("DistanceY", 0, 3, 1, 3, Q("57 mm")))
sketch30.addConstraint(Sketcher.Constraint("DistanceY", 0, 3, -1, 1, Q("84.35 mm")))
sketch30.addConstraint(Sketcher.Constraint("DistanceX", -1, 1, 1, 3, Q("62.200609 mm")))
sketch30.addConstraint(Sketcher.Constraint("DistanceX", -1, 1, 0, 3, Q("62.216524 mm")))
pocket15 = body.newObject("PartDesign::Pocket", "Pocket014")
pocket15.Profile = sketch30
pocket15.Type = "ThroughAll"

# Sketch on XZ plane
sketch31 = body.newObject("Sketcher::SketchObject", "Sketch030")
sketch31.AttachmentSupport = (doc.getObject("XZ_Plane"), [""])
sketch31.MapMode = "FlatFace"
sketch31.AttachmentOffset = App.Placement(Vector(0, 0, -10.65), App.Rotation())
sketch31.addGeometry(Part.Circle(Vector(62.2, -27.4, 0), Vector(0, 0, 1), 3), False)
sketch31.addGeometry(Part.Circle(Vector(62.2, -84.3, 0), Vector(0, 0, 1), 3), False)
sketch31.addConstraint(Sketcher.Constraint("Equal", 0, 1))
sketch31.addConstraint(Sketcher.Constraint("Diameter", 0, Q("6 mm")))
sketch31.addConstraint(Sketcher.Constraint("DistanceY", 1, 3, 0, 3, Q("57 mm")))
sketch31.addConstraint(Sketcher.Constraint("DistanceY", 0, 3, -1, 1, Q("27.35 mm")))
sketch31.addConstraint(Sketcher.Constraint("DistanceX", -1, 1, 0, 3, Q("62.200609 mm")))
sketch31.addConstraint(Sketcher.Constraint("DistanceX", -1, 1, 1, 3, Q("62.216524 mm")))
pocket16 = body.newObject("PartDesign::Pocket", "Pocket015")
pocket16.Profile = sketch31
pocket16.Length = 2
pocket16.Reversed = True

doc.recompute()
